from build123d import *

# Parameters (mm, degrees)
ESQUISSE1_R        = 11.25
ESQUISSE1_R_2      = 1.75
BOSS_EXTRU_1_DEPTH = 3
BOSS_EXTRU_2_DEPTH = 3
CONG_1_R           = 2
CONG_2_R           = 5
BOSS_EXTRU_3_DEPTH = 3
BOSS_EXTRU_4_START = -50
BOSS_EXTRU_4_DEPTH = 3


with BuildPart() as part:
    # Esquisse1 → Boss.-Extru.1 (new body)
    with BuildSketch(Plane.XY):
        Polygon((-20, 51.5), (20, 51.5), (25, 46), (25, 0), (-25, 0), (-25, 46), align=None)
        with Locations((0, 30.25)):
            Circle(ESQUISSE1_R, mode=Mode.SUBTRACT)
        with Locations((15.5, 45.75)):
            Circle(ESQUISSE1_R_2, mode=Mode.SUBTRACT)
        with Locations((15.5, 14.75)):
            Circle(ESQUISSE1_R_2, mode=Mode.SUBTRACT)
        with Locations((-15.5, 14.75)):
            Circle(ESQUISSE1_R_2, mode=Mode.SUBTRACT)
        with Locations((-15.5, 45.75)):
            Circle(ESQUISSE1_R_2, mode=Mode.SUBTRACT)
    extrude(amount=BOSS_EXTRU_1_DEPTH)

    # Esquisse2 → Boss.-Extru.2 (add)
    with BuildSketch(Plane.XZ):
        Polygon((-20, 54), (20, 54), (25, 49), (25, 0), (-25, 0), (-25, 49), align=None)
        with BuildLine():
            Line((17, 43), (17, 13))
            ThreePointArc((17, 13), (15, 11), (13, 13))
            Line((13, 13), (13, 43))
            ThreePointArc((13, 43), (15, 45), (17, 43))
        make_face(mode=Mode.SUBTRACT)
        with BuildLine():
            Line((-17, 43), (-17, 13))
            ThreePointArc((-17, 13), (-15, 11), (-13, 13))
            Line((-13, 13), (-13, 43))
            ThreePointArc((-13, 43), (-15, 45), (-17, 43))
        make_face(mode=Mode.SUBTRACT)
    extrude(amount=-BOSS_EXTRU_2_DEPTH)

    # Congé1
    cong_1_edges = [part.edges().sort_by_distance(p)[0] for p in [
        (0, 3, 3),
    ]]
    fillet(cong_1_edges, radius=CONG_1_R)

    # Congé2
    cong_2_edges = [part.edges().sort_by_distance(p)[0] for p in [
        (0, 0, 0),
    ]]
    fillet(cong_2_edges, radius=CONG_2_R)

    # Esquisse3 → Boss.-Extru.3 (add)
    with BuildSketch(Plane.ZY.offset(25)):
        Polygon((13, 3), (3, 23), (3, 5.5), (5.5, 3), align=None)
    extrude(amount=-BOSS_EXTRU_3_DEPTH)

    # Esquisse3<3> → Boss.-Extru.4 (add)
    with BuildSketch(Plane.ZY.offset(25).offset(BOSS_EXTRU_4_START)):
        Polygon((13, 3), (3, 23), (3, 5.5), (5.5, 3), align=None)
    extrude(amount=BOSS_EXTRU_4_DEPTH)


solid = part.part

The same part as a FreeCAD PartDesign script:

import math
import FreeCAD as App
import Part
import Sketcher
from FreeCAD import Vector
Q = App.Units.Quantity


def edges_at(feature, points):
    """Names of the edges that pass closest to the given points."""
    edges = feature.Shape.Edges
    near = lambda p: min(range(len(edges)), key=lambda i: edges[i].distToShape(Part.Vertex(*p))[0])
    return sorted({f"Edge{near(p) + 1}" for p in points})

doc = App.newDocument("Part")
body = doc.addObject("PartDesign::Body", "Body")

# Sketch on XY plane
sketch1 = body.newObject("Sketcher::SketchObject", "Sketch")
sketch1.AttachmentSupport = (doc.getObject("XY_Plane"), [""])
sketch1.MapMode = "FlatFace"
sketch1.addGeometry(Part.LineSegment(Vector(20, 51.5, 0), Vector(-20, 51.5, 0)), False)
sketch1.addGeometry(Part.LineSegment(Vector(-20, 51.5, 0), Vector(-25, 46, 0)), False)
sketch1.addGeometry(Part.LineSegment(Vector(-25, 46, 0), Vector(-25, 0, 0)), False)
sketch1.addGeometry(Part.LineSegment(Vector(-25, 0, 0), Vector(25, 0, 0)), False)
sketch1.addGeometry(Part.LineSegment(Vector(25, 0, 0), Vector(25, 46, 0)), False)
sketch1.addGeometry(Part.LineSegment(Vector(25, 46, 0), Vector(20, 51.5, 0)), False)
sketch1.addGeometry(Part.Circle(Vector(15.5, 14.8, 0), Vector(0, 0, 1), 1.8), False)
sketch1.addGeometry(Part.Circle(Vector(-15.5, 14.8, 0), Vector(0, 0, 1), 1.8), False)
sketch1.addGeometry(Part.Circle(Vector(15.5, 45.8, 0), Vector(0, 0, 1), 1.8), False)
sketch1.addGeometry(Part.Circle(Vector(0, 30.2, 0), Vector(0, 0, 1), 11.2), False)
sketch1.addGeometry(Part.Circle(Vector(-15.5, 45.8, 0), Vector(0, 0, 1), 1.8), False)
sketch1.addConstraint(Sketcher.Constraint("Coincident", 0, 2, 1, 1))
sketch1.addConstraint(Sketcher.Constraint("Coincident", 1, 2, 2, 1))
sketch1.addConstraint(Sketcher.Constraint("Coincident", 2, 2, 3, 1))
sketch1.addConstraint(Sketcher.Constraint("Coincident", 3, 2, 4, 1))
sketch1.addConstraint(Sketcher.Constraint("Coincident", 4, 2, 5, 1))
sketch1.addConstraint(Sketcher.Constraint("Coincident", 5, 2, 0, 1))
sketch1.addConstraint(Sketcher.Constraint("Horizontal", 0))
sketch1.addConstraint(Sketcher.Constraint("Vertical", 2))
sketch1.addConstraint(Sketcher.Constraint("Horizontal", 3))
sketch1.addConstraint(Sketcher.Constraint("Vertical", 4))
sketch1.addConstraint(Sketcher.Constraint("Equal", 6, 7))
sketch1.addConstraint(Sketcher.Constraint("Equal", 7, 8))
sketch1.addConstraint(Sketcher.Constraint("Equal", 8, 10))
sketch1.addConstraint(Sketcher.Constraint("Symmetric", 2, 2, 3, 2, -1, 1))
sketch1.addConstraint(Sketcher.Constraint("Symmetric", 6, 3, 7, 3, -2))
sketch1.addConstraint(Sketcher.Constraint("Symmetric", 8, 3, 10, 3, -2))
sketch1.addConstraint(Sketcher.Constraint("PointOnObject", 9, 3, -2))
sketch1.addConstraint(Sketcher.Constraint("Horizontal", 1, 2, 4, 2))
sketch1.addConstraint(Sketcher.Constraint("Vertical", 6, 3, 8, 3))
sketch1.addConstraint(Sketcher.Constraint("Equal", 1, 5))
sketch1.addConstraint(Sketcher.Constraint("Diameter", 6, 3.5))
sketch1.addConstraint(Sketcher.Constraint("Diameter", 9, 22.5))
sketch1.addConstraint(Sketcher.Constraint("DistanceX", 0, 2, 0, 1, 40.0))
sketch1.addConstraint(Sketcher.Constraint("DistanceX", 3, 1, 3, 2, 50.0))
sketch1.addConstraint(Sketcher.Constraint("DistanceY", 2, 2, 2, 1, 46.0))
sketch1.addConstraint(Sketcher.Constraint("DistanceX", 7, 3, 6, 3, 31.0))
sketch1.addConstraint(Sketcher.Constraint("DistanceY", 6, 3, 8, 3, 31.0))
sketch1.addConstraint(Sketcher.Constraint("DistanceY", -1, 1, 0, 2, 51.5))
sketch1.addConstraint(Sketcher.Constraint("DistanceY", 6, 3, 9, 3, 15.5))
sketch1.addConstraint(Sketcher.Constraint("DistanceY", -1, 1, 6, 3, 14.75))
pad1 = body.newObject("PartDesign::Pad", "Pad")
pad1.Profile = sketch1
pad1.Length = 3

# Sketch on XZ plane
sketch2 = body.newObject("Sketcher::SketchObject", "Sketch001")
sketch2.AttachmentSupport = (doc.getObject("XZ_Plane"), [""])
sketch2.MapMode = "FlatFace"
sketch2.addGeometry(Part.LineSegment(Vector(20, 54, 0), Vector(-20, 54, 0)), False)
sketch2.addGeometry(Part.LineSegment(Vector(-20, 54, 0), Vector(-25, 49, 0)), False)
sketch2.addGeometry(Part.LineSegment(Vector(-25, 49, 0), Vector(-25, 0, 0)), False)
sketch2.addGeometry(Part.LineSegment(Vector(-25, 0, 0), Vector(25, 0, 0)), False)
sketch2.addGeometry(Part.LineSegment(Vector(25, 0, 0), Vector(25, 49, 0)), False)
sketch2.addGeometry(Part.LineSegment(Vector(25, 49, 0), Vector(20, 54, 0)), False)
sketch2.addGeometry(Part.LineSegment(Vector(17, 43, 0), Vector(17, 13, 0)), False)
sketch2.addGeometry(Part.ArcOfCircle(Part.Circle(Vector(15, 13, 0), Vector(0, 0, 1), 2), math.radians(180), math.radians(360)), False)
sketch2.addGeometry(Part.LineSegment(Vector(13, 13, 0), Vector(13, 43, 0)), False)
sketch2.addGeometry(Part.ArcOfCircle(Part.Circle(Vector(15, 43, 0), Vector(0, 0, 1), 2), math.radians(0), math.radians(180)), False)
sketch2.addGeometry(Part.ArcOfCircle(Part.Circle(Vector(-15, 43, 0), Vector(0, 0, 1), 2), math.radians(0), math.radians(180)), False)
sketch2.addGeometry(Part.LineSegment(Vector(-13, 43, 0), Vector(-13, 13, 0)), False)
sketch2.addGeometry(Part.ArcOfCircle(Part.Circle(Vector(-15, 13, 0), Vector(0, 0, 1), 2), math.radians(180), math.radians(360)), False)
sketch2.addGeometry(Part.LineSegment(Vector(-17, 13, 0), Vector(-17, 43, 0)), False)
sketch2.addConstraint(Sketcher.Constraint("Coincident", 0, 2, 1, 1))
sketch2.addConstraint(Sketcher.Constraint("Coincident", 1, 2, 2, 1))
sketch2.addConstraint(Sketcher.Constraint("Coincident", 2, 2, 3, 1))
sketch2.addConstraint(Sketcher.Constraint("Coincident", 3, 2, 4, 1))
sketch2.addConstraint(Sketcher.Constraint("Coincident", 4, 2, 5, 1))
sketch2.addConstraint(Sketcher.Constraint("Coincident", 5, 2, 0, 1))
sketch2.addConstraint(Sketcher.Constraint("Tangent", 6, 2, 7, 2))
sketch2.addConstraint(Sketcher.Constraint("Tangent", 7, 1, 8, 1))
sketch2.addConstraint(Sketcher.Constraint("Tangent", 8, 2, 9, 2))
sketch2.addConstraint(Sketcher.Constraint("Tangent", 9, 1, 6, 1))
sketch2.addConstraint(Sketcher.Constraint("Tangent", 10, 1, 11, 1))
sketch2.addConstraint(Sketcher.Constraint("Tangent", 11, 2, 12, 2))
sketch2.addConstraint(Sketcher.Constraint("Tangent", 12, 1, 13, 1))
sketch2.addConstraint(Sketcher.Constraint("Tangent", 13, 2, 10, 2))
sketch2.addConstraint(Sketcher.Constraint("Horizontal", 0))
sketch2.addConstraint(Sketcher.Constraint("Vertical", 2))
sketch2.addConstraint(Sketcher.Constraint("Horizontal", 3))
sketch2.addConstraint(Sketcher.Constraint("Vertical", 4))
sketch2.addConstraint(Sketcher.Constraint("Vertical", 6))
sketch2.addConstraint(Sketcher.Constraint("Vertical", 8))
sketch2.addConstraint(Sketcher.Constraint("Vertical", 11))
sketch2.addConstraint(Sketcher.Constraint("Vertical", 13))
sketch2.addConstraint(Sketcher.Constraint("Equal", 9, 10))
sketch2.addConstraint(Sketcher.Constraint("Symmetric", 2, 2, 3, 2, -1, 1))
sketch2.addConstraint(Sketcher.Constraint("Symmetric", 9, 3, 10, 3, -2))
sketch2.addConstraint(Sketcher.Constraint("Perpendicular", 1, 5))
sketch2.addConstraint(Sketcher.Constraint("Horizontal", 7, 3, 12, 3))
sketch2.addConstraint(Sketcher.Constraint("Horizontal", 1, 2, 4, 2))
sketch2.addConstraint(Sketcher.Constraint("Equal", 1, 5))
sketch2.addConstraint(Sketcher.Constraint("Radius", 7, 2.0))
sketch2.addConstraint(Sketcher.Constraint("DistanceX", 0, 2, 0, 1, 40.0))
sketch2.addConstraint(Sketcher.Constraint("DistanceX", 3, 1, 3, 2, 50.0))
sketch2.addConstraint(Sketcher.Constraint("DistanceY", 2, 2, 2, 1, 49.0))
sketch2.addConstraint(Sketcher.Constraint("DistanceY", 6, 2, 6, 1, 30.0))
sketch2.addConstraint(Sketcher.Constraint("DistanceX", -1, 1, 7, 3, 15.0))
sketch2.addConstraint(Sketcher.Constraint("DistanceY", -1, 1, 7, 3, 13.0))
pad2 = body.newObject("PartDesign::Pad", "Pad001")
pad2.Profile = sketch2
pad2.Length = 3
pad2.Reversed = True
doc.recompute()

fillet = body.newObject("PartDesign::Fillet", "Fillet")
fillet.Base = (pad2, edges_at(pad2, [(0, 3, 3)]))
fillet.Radius = 2
doc.recompute()

fillet2 = body.newObject("PartDesign::Fillet", "Fillet001")
fillet2.Base = (fillet, edges_at(fillet, [(0, 0, 0)]))
fillet2.Radius = 5

# Sketch on YZ plane
sketch3 = body.newObject("Sketcher::SketchObject", "Sketch002")
sketch3.AttachmentSupport = (doc.getObject("YZ_Plane"), [""])
sketch3.MapMode = "FlatFace"
sketch3.AttachmentOffset = App.Placement(Vector(0, 0, -25), App.Rotation())
sketch3.addGeometry(Part.LineSegment(Vector(3, 13, 0), Vector(23, 3, 0)), False)
sketch3.addGeometry(Part.LineSegment(Vector(23, 3, 0), Vector(5.5, 3, 0)), False)
sketch3.addGeometry(Part.LineSegment(Vector(5.5, 3, 0), Vector(3, 5.5, 0)), False)
sketch3.addGeometry(Part.LineSegment(Vector(3, 5.5, 0), Vector(3, 13, 0)), False)
sketch3.addConstraint(Sketcher.Constraint("Coincident", 0, 2, 1, 1))
sketch3.addConstraint(Sketcher.Constraint("Coincident", 1, 2, 2, 1))
sketch3.addConstraint(Sketcher.Constraint("Coincident", 2, 2, 3, 1))
sketch3.addConstraint(Sketcher.Constraint("Coincident", 3, 2, 0, 1))
sketch3.addConstraint(Sketcher.Constraint("Horizontal", 1))
sketch3.addConstraint(Sketcher.Constraint("Vertical", 3))
sketch3.addConstraint(Sketcher.Constraint("Angle", 2, Q("135 deg")))
sketch3.addConstraint(Sketcher.Constraint("DistanceX", 1, 2, 1, 1, 17.5))
sketch3.addConstraint(Sketcher.Constraint("DistanceY", 3, 1, 3, 2, 7.5))
sketch3.addConstraint(Sketcher.Constraint("DistanceX", -1, 1, 0, 2, 23.0))
sketch3.addConstraint(Sketcher.Constraint("DistanceY", -1, 1, 0, 2, 3.0))
sketch3.addConstraint(Sketcher.Constraint("DistanceX", -1, 1, 2, 2, 3.0))
pad3 = body.newObject("PartDesign::Pad", "Pad002")
pad3.Profile = sketch3
pad3.Length = 3

# Sketch on YZ plane
sketch4 = body.newObject("Sketcher::SketchObject", "Sketch003")
sketch4.AttachmentSupport = (doc.getObject("YZ_Plane"), [""])
sketch4.MapMode = "FlatFace"
sketch4.AttachmentOffset = App.Placement(Vector(0, 0, 25), App.Rotation())
sketch4.addGeometry(Part.LineSegment(Vector(3, 13, 0), Vector(23, 3, 0)), False)
sketch4.addGeometry(Part.LineSegment(Vector(23, 3, 0), Vector(5.5, 3, 0)), False)
sketch4.addGeometry(Part.LineSegment(Vector(5.5, 3, 0), Vector(3, 5.5, 0)), False)
sketch4.addGeometry(Part.LineSegment(Vector(3, 5.5, 0), Vector(3, 13, 0)), False)
sketch4.addConstraint(Sketcher.Constraint("Coincident", 0, 2, 1, 1))
sketch4.addConstraint(Sketcher.Constraint("Coincident", 1, 2, 2, 1))
sketch4.addConstraint(Sketcher.Constraint("Coincident", 2, 2, 3, 1))
sketch4.addConstraint(Sketcher.Constraint("Coincident", 3, 2, 0, 1))
sketch4.addConstraint(Sketcher.Constraint("Horizontal", 1))
sketch4.addConstraint(Sketcher.Constraint("Vertical", 3))
sketch4.addConstraint(Sketcher.Constraint("Angle", 2, Q("135 deg")))
sketch4.addConstraint(Sketcher.Constraint("DistanceX", 1, 2, 1, 1, 17.5))
sketch4.addConstraint(Sketcher.Constraint("DistanceY", 3, 1, 3, 2, 7.5))
sketch4.addConstraint(Sketcher.Constraint("DistanceX", -1, 1, 0, 2, 23.0))
sketch4.addConstraint(Sketcher.Constraint("DistanceY", -1, 1, 0, 2, 3.0))
sketch4.addConstraint(Sketcher.Constraint("DistanceX", -1, 1, 2, 2, 3.0))
pad4 = body.newObject("PartDesign::Pad", "Pad003")
pad4.Profile = sketch4
pad4.Length = 3
pad4.Reversed = True

doc.recompute()
